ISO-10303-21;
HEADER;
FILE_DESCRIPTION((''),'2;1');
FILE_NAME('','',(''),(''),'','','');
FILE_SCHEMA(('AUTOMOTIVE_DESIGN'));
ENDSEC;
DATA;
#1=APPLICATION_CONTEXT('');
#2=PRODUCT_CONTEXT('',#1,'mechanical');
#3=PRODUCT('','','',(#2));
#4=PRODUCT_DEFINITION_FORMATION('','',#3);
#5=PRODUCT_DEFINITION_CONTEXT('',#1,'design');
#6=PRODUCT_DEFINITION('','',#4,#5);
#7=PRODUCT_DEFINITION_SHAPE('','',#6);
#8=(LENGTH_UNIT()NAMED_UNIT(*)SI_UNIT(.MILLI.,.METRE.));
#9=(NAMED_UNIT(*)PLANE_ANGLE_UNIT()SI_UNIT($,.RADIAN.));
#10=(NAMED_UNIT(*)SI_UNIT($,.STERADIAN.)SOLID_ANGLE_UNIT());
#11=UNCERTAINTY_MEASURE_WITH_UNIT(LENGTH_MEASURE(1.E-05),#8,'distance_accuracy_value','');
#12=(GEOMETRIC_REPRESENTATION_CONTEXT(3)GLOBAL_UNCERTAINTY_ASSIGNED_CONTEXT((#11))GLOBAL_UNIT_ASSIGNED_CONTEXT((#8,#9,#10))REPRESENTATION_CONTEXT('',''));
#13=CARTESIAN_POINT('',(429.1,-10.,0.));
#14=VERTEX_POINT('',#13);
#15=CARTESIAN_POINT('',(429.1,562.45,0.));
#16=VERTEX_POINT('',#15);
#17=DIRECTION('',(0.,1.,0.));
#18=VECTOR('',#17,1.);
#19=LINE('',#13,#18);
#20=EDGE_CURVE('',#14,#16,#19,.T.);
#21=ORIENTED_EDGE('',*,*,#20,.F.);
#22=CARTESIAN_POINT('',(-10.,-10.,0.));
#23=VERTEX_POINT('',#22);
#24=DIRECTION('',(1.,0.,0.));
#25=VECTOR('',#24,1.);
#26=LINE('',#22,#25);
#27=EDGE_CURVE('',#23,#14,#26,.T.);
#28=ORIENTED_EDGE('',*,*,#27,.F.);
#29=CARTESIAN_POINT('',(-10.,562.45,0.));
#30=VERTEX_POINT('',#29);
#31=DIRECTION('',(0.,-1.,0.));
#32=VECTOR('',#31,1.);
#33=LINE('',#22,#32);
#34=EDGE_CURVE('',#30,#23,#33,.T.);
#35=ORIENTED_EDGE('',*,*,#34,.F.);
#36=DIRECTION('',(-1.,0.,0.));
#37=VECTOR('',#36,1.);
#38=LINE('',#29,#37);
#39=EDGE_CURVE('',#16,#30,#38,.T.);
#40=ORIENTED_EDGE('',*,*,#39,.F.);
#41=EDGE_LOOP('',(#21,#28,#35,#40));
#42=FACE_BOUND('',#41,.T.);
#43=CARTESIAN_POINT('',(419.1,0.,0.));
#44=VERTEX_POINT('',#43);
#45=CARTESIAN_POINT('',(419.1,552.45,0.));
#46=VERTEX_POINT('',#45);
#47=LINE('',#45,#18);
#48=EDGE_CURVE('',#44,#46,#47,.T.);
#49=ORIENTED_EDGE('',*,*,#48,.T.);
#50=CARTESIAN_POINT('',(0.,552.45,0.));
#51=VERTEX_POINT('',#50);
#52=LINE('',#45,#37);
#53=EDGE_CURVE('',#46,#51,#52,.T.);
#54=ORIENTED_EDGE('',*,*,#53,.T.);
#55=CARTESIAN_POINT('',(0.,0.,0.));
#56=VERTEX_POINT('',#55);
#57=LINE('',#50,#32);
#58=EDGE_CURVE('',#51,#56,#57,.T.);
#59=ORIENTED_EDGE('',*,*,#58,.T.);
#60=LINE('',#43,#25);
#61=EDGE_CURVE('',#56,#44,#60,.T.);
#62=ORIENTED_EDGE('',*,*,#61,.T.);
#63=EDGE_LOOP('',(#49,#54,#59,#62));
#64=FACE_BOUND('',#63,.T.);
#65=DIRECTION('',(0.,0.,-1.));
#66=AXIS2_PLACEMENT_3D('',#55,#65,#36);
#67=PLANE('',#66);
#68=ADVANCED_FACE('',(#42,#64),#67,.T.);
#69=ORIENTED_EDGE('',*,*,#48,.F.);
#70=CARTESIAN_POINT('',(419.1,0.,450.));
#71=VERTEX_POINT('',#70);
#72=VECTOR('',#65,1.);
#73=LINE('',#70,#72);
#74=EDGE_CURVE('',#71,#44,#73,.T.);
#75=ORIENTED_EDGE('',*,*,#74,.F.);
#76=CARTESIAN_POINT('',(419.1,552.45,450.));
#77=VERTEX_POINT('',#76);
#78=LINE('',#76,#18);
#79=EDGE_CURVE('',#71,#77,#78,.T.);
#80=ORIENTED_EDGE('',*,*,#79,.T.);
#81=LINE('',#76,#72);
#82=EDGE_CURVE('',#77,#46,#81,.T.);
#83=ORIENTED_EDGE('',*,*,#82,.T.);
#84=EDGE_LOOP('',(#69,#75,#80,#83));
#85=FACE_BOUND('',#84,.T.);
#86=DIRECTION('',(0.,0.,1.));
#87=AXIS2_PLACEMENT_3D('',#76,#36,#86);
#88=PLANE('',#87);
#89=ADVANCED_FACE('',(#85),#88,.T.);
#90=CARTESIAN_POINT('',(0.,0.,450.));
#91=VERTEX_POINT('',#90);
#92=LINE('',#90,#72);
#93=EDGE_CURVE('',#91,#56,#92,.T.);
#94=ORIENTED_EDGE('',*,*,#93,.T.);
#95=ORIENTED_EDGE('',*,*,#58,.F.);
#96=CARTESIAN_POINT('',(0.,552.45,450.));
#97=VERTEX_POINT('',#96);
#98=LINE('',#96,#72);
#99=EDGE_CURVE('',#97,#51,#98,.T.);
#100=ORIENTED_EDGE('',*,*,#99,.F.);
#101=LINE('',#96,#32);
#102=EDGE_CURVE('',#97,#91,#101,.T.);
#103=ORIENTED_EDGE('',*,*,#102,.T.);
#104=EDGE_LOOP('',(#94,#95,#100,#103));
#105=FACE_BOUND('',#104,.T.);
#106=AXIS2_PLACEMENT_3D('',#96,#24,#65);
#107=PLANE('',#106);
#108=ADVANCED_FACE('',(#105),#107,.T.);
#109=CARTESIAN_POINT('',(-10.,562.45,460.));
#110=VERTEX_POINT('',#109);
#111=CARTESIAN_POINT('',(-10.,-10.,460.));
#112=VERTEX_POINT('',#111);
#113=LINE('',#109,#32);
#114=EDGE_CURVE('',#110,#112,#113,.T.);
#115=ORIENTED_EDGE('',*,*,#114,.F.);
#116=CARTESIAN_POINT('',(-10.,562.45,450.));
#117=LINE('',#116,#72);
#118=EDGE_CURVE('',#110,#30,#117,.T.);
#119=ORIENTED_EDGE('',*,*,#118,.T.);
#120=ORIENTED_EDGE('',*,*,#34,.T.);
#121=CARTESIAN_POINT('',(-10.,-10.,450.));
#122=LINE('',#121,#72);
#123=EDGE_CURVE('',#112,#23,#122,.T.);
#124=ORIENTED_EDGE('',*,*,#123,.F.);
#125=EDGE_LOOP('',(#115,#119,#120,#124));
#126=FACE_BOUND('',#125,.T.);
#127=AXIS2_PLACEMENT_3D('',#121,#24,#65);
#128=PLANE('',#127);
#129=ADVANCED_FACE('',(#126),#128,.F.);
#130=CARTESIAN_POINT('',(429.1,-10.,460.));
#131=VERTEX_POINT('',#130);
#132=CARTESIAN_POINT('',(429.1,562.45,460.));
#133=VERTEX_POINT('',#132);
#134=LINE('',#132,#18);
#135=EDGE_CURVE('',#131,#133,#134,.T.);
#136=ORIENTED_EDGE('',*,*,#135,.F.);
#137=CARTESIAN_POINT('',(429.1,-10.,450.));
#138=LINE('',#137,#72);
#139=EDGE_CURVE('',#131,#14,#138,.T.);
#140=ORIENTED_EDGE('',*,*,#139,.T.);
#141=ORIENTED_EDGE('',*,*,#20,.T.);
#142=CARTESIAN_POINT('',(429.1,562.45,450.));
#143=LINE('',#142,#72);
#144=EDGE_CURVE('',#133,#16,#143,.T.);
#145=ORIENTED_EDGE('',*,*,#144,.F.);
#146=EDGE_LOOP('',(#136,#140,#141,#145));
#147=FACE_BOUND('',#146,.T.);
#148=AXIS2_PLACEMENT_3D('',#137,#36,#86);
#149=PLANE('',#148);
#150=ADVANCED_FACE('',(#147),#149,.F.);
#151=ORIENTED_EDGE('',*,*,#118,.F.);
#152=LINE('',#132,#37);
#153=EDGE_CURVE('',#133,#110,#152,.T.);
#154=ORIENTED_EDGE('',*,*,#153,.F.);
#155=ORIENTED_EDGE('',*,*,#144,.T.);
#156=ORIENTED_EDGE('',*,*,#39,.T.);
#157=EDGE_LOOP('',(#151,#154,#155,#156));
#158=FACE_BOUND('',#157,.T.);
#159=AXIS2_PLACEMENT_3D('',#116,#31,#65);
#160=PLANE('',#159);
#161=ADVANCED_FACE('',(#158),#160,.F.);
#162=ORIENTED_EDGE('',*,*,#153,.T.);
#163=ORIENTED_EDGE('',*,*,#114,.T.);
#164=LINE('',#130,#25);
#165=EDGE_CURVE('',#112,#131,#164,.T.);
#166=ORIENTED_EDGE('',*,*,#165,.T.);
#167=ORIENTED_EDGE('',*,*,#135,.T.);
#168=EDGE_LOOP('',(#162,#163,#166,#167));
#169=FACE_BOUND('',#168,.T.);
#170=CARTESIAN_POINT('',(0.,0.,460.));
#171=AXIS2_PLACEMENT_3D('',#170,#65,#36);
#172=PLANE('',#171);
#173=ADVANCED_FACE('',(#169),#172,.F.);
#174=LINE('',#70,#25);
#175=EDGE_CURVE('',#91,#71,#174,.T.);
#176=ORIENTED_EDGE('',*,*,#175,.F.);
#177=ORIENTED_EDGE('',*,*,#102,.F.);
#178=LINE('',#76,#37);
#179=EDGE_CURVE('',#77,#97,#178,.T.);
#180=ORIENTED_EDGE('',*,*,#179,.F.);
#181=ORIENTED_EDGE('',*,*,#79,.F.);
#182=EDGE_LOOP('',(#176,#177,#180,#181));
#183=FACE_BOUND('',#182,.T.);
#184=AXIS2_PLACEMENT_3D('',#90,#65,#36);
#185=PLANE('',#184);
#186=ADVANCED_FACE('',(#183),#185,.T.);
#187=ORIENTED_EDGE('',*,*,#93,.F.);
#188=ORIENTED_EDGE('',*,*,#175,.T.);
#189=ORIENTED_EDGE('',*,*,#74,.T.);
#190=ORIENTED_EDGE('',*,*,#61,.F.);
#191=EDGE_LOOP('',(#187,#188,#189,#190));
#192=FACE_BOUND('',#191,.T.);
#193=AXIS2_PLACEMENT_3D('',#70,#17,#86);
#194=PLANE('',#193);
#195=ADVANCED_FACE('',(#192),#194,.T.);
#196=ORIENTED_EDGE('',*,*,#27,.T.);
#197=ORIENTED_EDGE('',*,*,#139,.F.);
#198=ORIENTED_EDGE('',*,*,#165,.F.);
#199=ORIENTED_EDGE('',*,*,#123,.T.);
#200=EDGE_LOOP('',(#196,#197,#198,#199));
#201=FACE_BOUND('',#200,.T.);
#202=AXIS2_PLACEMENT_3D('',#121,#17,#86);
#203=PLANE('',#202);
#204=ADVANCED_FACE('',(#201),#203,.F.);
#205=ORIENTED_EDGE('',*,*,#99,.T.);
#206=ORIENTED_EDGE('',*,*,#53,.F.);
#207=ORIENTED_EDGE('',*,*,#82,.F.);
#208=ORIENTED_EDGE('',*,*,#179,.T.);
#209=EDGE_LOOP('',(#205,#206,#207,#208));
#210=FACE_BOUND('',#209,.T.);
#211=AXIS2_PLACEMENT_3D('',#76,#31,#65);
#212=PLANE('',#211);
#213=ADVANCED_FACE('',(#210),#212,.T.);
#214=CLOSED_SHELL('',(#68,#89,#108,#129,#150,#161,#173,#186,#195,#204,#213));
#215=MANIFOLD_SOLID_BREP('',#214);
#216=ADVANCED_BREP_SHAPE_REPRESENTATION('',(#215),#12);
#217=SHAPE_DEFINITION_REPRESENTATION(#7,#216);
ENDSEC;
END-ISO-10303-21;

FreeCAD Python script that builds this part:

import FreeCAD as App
import Part
import Sketcher

doc = App.newDocument("Part")
params = doc.addObject("Spreadsheet::Sheet", "Params")
for row, (alias, value) in enumerate([
    ("sketch1_width", "439.1 mm"),
    ("sketch1_width2", "419.1 mm"),
    ("sketch1_height", "572.45 mm"),
    ("pad1_length", "450 mm"),
    ("sketch2_width", "439.1 mm"),
    ("sketch2_height", "572.45 mm"),
    ("pad2_length", "10 mm"),
], start=1):
    params.set(f"A{row}", alias)
    params.set(f"B{row}", "=" + value)
    params.setAlias(f"B{row}", alias)

body = doc.addObject("PartDesign::Body", "Body")

# Sketch on XY plane
sketch1 = doc.addObject("Sketcher::SketchObject", "Sketch")
body.addObject(sketch1)
sketch1.AttachmentSupport = (doc.XY_Plane, [""])
sketch1.MapMode = "FlatFace"
sketch1.addGeometry([
    Part.LineSegment(App.Vector(-10, 562, 0), App.Vector(-10, -10, 0)),  # 0
    Part.LineSegment(App.Vector(-10, -10, 0), App.Vector(429, -10, 0)),  # 1
    Part.LineSegment(App.Vector(429, -10, 0), App.Vector(429, 562, 0)),  # 2
    Part.LineSegment(App.Vector(429, 562, 0), App.Vector(-10, 562, 0)),  # 3
    Part.LineSegment(App.Vector(419, 0, 0), App.Vector(0, 0, 0)),  # 4
    Part.LineSegment(App.Vector(0, 0, 0), App.Vector(0, 552, 0)),  # 5
    Part.LineSegment(App.Vector(0, 552, 0), App.Vector(419, 552, 0)),  # 6
    Part.LineSegment(App.Vector(419, 552, 0), App.Vector(419, 0, 0)),  # 7
], False)
sketch1.addConstraint([
    Sketcher.Constraint("Coincident", 0, 2, 1, 1),
    Sketcher.Constraint("Coincident", 1, 2, 2, 1),
    Sketcher.Constraint("Coincident", 2, 2, 3, 1),
    Sketcher.Constraint("Coincident", 3, 2, 0, 1),
    Sketcher.Constraint("Coincident", 4, 2, 5, 1),
    Sketcher.Constraint("Coincident", 5, 2, 6, 1),
    Sketcher.Constraint("Coincident", 6, 2, 7, 1),
    Sketcher.Constraint("Coincident", 7, 2, 4, 1),
    Sketcher.Constraint("Vertical", 0),
    Sketcher.Constraint("Horizontal", 1),
    Sketcher.Constraint("Vertical", 2),
    Sketcher.Constraint("Horizontal", 3),
    Sketcher.Constraint("Horizontal", 4),
    Sketcher.Constraint("Vertical", 5),
    Sketcher.Constraint("Horizontal", 6),
    Sketcher.Constraint("Vertical", 7),
    Sketcher.Constraint("Coincident", 4, 2, -1, 1),
    Sketcher.Constraint("DistanceX", 1, 1, 1, 2, 439.1),
    Sketcher.Constraint("DistanceX", 4, 2, 4, 1, 419.1),
    Sketcher.Constraint("DistanceX", 0, 2, -1, 1, 10.0),
    Sketcher.Constraint("DistanceY", 0, 2, -1, 1, 10.0),
    Sketcher.Constraint("DistanceY", 5, 2, 3, 2, 10.0),
    Sketcher.Constraint("DistanceY", 0, 2, 0, 1, 572.45),
])
sketch1.setExpression("Constraints[17]", "Params.sketch1_width")
sketch1.setExpression("Constraints[18]", "Params.sketch1_width2")
sketch1.setExpression("Constraints[22]", "Params.sketch1_height")
pad1 = doc.addObject("PartDesign::Pad", "Pad")
body.addObject(pad1)
pad1.Profile = sketch1
pad1.setExpression("Length", "Params.pad1_length")

# Sketch on XY plane
sketch2 = doc.addObject("Sketcher::SketchObject", "Sketch001")
body.addObject(sketch2)
sketch2.AttachmentSupport = (doc.XY_Plane, [""])
sketch2.MapMode = "FlatFace"
sketch2.AttachmentOffset = App.Placement(App.Vector(0, 0, 450), App.Rotation())
sketch2.addGeometry([
    Part.LineSegment(App.Vector(-10, 562, 0), App.Vector(-10, -10, 0)),
    Part.LineSegment(App.Vector(-10, -10, 0), App.Vector(429, -10, 0)),
    Part.LineSegment(App.Vector(429, -10, 0), App.Vector(429, 562, 0)),
    Part.LineSegment(App.Vector(429, 562, 0), App.Vector(-10, 562, 0)),
], False)
sketch2.addConstraint([
    Sketcher.Constraint("Coincident", 0, 2, 1, 1),
    Sketcher.Constraint("Coincident", 1, 2, 2, 1),
    Sketcher.Constraint("Coincident", 2, 2, 3, 1),
    Sketcher.Constraint("Coincident", 3, 2, 0, 1),
    Sketcher.Constraint("Vertical", 0),
    Sketcher.Constraint("Horizontal", 1),
    Sketcher.Constraint("Vertical", 2),
    Sketcher.Constraint("Horizontal", 3),
    Sketcher.Constraint("DistanceX", 1, 1, 1, 2, 439.1),
    Sketcher.Constraint("DistanceX", 0, 2, -1, 1, 10.0),
    Sketcher.Constraint("DistanceY", 0, 2, -1, 1, 10.0),
    Sketcher.Constraint("DistanceY", 0, 2, 0, 1, 572.45),
])
sketch2.setExpression("Constraints[8]", "Params.sketch2_width")
sketch2.setExpression("Constraints[11]", "Params.sketch2_height")
pad2 = doc.addObject("PartDesign::Pad", "Pad001")
body.addObject(pad2)
pad2.Profile = sketch2
pad2.setExpression("Length", "Params.pad2_length")

doc.recompute()
